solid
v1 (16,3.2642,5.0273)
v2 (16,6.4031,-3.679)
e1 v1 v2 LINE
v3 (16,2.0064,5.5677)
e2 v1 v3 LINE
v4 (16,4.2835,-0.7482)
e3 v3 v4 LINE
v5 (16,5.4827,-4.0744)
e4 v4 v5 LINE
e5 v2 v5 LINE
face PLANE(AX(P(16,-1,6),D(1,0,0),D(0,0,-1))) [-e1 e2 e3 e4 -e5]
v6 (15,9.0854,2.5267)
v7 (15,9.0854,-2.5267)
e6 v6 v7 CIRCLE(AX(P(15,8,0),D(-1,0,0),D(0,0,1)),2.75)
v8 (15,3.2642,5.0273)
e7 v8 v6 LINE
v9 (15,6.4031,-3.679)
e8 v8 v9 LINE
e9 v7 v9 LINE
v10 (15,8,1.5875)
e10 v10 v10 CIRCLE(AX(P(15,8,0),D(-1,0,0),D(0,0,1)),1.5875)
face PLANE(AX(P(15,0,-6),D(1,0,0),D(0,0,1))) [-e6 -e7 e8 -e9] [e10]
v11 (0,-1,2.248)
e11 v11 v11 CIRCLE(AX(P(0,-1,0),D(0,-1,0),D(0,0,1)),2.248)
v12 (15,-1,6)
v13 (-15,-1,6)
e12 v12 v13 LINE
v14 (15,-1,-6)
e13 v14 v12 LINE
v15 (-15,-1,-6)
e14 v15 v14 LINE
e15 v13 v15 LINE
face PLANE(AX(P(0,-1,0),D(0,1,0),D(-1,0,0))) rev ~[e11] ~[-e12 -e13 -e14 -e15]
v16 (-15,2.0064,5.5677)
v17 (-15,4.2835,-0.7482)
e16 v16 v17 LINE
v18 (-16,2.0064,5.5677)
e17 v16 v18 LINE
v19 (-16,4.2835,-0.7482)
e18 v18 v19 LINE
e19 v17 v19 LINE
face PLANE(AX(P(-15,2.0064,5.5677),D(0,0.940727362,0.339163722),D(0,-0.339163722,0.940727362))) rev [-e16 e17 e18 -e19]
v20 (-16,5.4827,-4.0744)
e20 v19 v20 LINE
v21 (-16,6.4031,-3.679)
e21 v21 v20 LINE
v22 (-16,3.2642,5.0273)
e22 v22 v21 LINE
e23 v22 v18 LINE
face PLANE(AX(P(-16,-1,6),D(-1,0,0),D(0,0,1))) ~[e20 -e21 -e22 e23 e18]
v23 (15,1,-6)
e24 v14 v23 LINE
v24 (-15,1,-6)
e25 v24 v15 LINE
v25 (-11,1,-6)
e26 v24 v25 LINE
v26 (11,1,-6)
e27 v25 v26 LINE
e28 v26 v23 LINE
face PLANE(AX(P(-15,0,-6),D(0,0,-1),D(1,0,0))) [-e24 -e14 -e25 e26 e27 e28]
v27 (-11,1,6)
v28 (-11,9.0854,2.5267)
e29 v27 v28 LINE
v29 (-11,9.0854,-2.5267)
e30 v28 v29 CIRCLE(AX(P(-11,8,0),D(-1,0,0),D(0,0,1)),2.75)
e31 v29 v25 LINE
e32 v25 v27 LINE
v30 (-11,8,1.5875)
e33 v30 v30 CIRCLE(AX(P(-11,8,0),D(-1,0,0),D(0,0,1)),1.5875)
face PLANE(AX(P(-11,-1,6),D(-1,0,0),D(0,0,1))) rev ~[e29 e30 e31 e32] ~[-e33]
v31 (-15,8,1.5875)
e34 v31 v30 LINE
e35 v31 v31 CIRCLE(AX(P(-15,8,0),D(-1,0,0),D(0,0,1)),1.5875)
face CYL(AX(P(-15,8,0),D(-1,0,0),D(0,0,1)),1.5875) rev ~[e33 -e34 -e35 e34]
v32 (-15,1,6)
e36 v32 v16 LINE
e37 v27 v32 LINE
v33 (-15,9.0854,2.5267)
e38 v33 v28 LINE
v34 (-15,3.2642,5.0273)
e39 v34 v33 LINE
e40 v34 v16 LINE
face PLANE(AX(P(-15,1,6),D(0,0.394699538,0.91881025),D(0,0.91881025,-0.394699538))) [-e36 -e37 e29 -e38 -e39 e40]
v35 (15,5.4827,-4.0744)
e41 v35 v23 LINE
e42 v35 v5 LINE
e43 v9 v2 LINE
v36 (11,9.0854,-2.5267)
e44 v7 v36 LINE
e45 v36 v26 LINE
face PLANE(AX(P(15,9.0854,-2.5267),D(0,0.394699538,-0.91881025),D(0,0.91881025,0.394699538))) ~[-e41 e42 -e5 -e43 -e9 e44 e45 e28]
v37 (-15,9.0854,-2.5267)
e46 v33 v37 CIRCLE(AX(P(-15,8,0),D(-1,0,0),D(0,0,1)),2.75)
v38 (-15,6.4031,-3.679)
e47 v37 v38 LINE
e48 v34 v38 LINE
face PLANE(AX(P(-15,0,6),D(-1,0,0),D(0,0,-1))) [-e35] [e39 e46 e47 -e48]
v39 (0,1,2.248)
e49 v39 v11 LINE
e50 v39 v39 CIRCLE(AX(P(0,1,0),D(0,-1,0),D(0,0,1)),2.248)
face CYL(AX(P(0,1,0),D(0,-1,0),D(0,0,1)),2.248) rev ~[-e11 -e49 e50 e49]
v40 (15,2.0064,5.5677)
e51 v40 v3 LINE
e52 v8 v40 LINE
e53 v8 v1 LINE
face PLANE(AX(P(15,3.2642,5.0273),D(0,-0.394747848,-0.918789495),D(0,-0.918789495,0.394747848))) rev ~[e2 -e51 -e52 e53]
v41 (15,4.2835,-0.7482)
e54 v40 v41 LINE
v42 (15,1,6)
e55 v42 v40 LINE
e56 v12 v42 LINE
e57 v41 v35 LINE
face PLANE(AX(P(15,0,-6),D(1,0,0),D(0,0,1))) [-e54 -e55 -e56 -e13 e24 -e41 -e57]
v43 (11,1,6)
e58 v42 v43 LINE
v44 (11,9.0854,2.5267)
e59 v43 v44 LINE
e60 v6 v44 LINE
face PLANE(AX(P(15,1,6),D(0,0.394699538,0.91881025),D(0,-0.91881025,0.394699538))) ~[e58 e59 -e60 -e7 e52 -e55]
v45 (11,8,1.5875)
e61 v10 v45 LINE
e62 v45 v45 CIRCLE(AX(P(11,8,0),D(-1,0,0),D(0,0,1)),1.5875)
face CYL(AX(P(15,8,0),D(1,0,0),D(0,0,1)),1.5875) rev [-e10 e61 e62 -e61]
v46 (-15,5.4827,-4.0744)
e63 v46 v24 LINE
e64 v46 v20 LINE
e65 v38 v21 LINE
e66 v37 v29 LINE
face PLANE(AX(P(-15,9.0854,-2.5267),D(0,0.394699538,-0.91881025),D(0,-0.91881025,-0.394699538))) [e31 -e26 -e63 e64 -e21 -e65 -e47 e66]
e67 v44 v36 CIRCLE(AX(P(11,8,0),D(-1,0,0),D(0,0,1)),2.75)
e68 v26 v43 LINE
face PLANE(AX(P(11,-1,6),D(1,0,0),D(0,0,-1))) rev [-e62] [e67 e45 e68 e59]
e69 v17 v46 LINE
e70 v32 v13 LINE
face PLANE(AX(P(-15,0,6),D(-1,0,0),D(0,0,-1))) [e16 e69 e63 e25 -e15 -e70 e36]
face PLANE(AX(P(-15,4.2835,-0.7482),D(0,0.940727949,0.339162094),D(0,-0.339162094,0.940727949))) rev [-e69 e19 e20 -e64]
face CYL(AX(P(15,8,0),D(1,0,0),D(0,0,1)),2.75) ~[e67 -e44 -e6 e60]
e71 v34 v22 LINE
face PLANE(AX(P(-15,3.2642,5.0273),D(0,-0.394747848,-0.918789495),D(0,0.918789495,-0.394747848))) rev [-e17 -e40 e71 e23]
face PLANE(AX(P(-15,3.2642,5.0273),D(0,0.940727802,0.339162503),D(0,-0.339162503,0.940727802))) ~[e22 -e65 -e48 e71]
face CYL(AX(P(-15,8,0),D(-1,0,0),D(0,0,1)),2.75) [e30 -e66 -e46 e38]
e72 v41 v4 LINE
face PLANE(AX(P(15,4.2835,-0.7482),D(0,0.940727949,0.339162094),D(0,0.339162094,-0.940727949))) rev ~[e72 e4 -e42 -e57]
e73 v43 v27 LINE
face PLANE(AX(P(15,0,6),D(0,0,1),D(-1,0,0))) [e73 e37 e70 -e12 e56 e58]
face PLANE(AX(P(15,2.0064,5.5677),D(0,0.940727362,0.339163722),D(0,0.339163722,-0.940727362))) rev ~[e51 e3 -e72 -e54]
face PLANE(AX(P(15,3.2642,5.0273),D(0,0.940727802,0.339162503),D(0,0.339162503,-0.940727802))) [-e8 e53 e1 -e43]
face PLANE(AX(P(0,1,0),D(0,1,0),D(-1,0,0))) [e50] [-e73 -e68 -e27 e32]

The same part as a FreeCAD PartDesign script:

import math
import FreeCAD as App
import Part
import Sketcher

V = App.Vector
Q = App.Units.Quantity

doc = App.newDocument("Part")
body = doc.addObject("PartDesign::Body", "Body")

# Sketch on XZ plane
sketch1 = body.newObject("Sketcher::SketchObject", "Sketch")
sketch1.AttachmentSupport = (doc.getObject("XZ_Plane"), [""])
sketch1.MapMode = "FlatFace"
sketch1.addGeometry(Part.LineSegment(V(-15, 6, 0), V(15, 6, 0)), False)
sketch1.addGeometry(Part.LineSegment(V(15, 6, 0), V(15, -6, 0)), False)
sketch1.addGeometry(Part.LineSegment(V(15, -6, 0), V(-15, -6, 0)), False)
sketch1.addGeometry(Part.LineSegment(V(-15, -6, 0), V(-15, 6, 0)), False)
sketch1.addConstraint(Sketcher.Constraint("Coincident", 0, 2, 1, 1))
sketch1.addConstraint(Sketcher.Constraint("Coincident", 1, 2, 2, 1))
sketch1.addConstraint(Sketcher.Constraint("Coincident", 2, 2, 3, 1))
sketch1.addConstraint(Sketcher.Constraint("Coincident", 3, 2, 0, 1))
sketch1.addConstraint(Sketcher.Constraint("Horizontal", 0))
sketch1.addConstraint(Sketcher.Constraint("Vertical", 1))
sketch1.addConstraint(Sketcher.Constraint("Horizontal", 2))
sketch1.addConstraint(Sketcher.Constraint("Vertical", 3))
sketch1.addConstraint(Sketcher.Constraint("Symmetric", 0, 2, 2, 2, -1, 1))
sketch1.addConstraint(Sketcher.Constraint("DistanceX", 0, 1, 0, 2, Q("30 mm")))
sketch1.addConstraint(Sketcher.Constraint("DistanceY", 1, 2, 1, 1, Q("12 mm")))
pad1 = body.newObject("PartDesign::Pad", "Pad")
pad1.Profile = sketch1
pad1.Length = 2
pad1.Midplane = True

# Sketch on YZ plane
sketch2 = body.newObject("Sketcher::SketchObject", "Sketch001")
sketch2.AttachmentSupport = (doc.getObject("YZ_Plane"), [""])
sketch2.MapMode = "FlatFace"
sketch2.AttachmentOffset = App.Placement(V(0, 0, -15), App.Rotation())
sketch2.addGeometry(Part.ArcOfCircle(Part.Circle(V(8, 0, 0), V(0, 0, 1), 2.8), math.radians(-67), math.radians(67)), False)
sketch2.addGeometry(Part.LineSegment(V(9.1, -2.5, 0), V(1, -6, 0)), False)
sketch2.addGeometry(Part.LineSegment(V(1, -6, 0), V(1, 6, 0)), False)
sketch2.addGeometry(Part.LineSegment(V(1, 6, 0), V(9.1, 2.5, 0)), False)
sketch2.addGeometry(Part.Circle(V(8, 0, 0), V(0, 0, 1), 1.6), False)
sketch2.addConstraint(Sketcher.Constraint("Tangent", 0, 1, 1, 1))
sketch2.addConstraint(Sketcher.Constraint("Coincident", 1, 2, 2, 1))
sketch2.addConstraint(Sketcher.Constraint("Coincident", 2, 2, 3, 1))
sketch2.addConstraint(Sketcher.Constraint("Tangent", 3, 2, 0, 2))
sketch2.addConstraint(Sketcher.Constraint("Vertical", 2))
sketch2.addConstraint(Sketcher.Constraint("Coincident", 4, 3, 0, 3))
sketch2.addConstraint(Sketcher.Constraint("Symmetric", 0, 1, 3, 2, -1))
sketch2.addConstraint(Sketcher.Constraint("Radius", 0, Q("2.75 mm")))
sketch2.addConstraint(Sketcher.Constraint("Diameter", 4, Q("3.175 mm")))
sketch2.addConstraint(Sketcher.Constraint("DistanceX", 1, 2, 0, 3, Q("7 mm")))
sketch2.addConstraint(Sketcher.Constraint("DistanceY", 2, 1, 2, 2, Q("12 mm")))
sketch2.addConstraint(Sketcher.Constraint("DistanceX", -1, 1, 0, 3, Q("8 mm")))
pad2 = body.newObject("PartDesign::Pad", "Pad001")
pad2.Profile = sketch2
pad2.Length = 4
doc.recompute()

mirrored = body.newObject("PartDesign::Mirrored", "Mirrored")
mirrored.Originals = [pad2]
mirrored.MirrorPlane = (doc.getObject("YZ_Plane"), [""])
body.Tip = mirrored

# Sketch on YZ plane
sketch3 = body.newObject("Sketcher::SketchObject", "Sketch002")
sketch3.AttachmentSupport = (doc.getObject("YZ_Plane"), [""])
sketch3.MapMode = "FlatFace"
sketch3.AttachmentOffset = App.Placement(V(0, 0, 15), App.Rotation())
sketch3.addGeometry(Part.LineSegment(V(5.5, -4.1, 0), V(6.4, -3.7, 0)), False)
sketch3.addGeometry(Part.LineSegment(V(6.4, -3.7, 0), V(3.3, 5, 0)), False)
sketch3.addGeometry(Part.LineSegment(V(3.3, 5, 0), V(2, 5.6, 0)), False)
sketch3.addGeometry(Part.LineSegment(V(2, 5.6, 0), V(4.3, -0.7, 0)), False)
sketch3.addGeometry(Part.LineSegment(V(4.3, -0.7, 0), V(5.5, -4.1, 0)), False)
sketch3.addConstraint(Sketcher.Constraint("Coincident", 0, 2, 1, 1))
sketch3.addConstraint(Sketcher.Constraint("Coincident", 1, 2, 2, 1))
sketch3.addConstraint(Sketcher.Constraint("Coincident", 2, 2, 3, 1))
sketch3.addConstraint(Sketcher.Constraint("Coincident", 3, 2, 4, 1))
sketch3.addConstraint(Sketcher.Constraint("Coincident", 4, 2, 0, 1))
sketch3.addConstraint(Sketcher.Constraint("Parallel", 1, 3))
sketch3.addConstraint(Sketcher.Constraint("Parallel", 3, 4))
sketch3.addConstraint(Sketcher.Constraint("Angle", 2, Q("156.7498 deg")))
sketch3.addConstraint(Sketcher.Constraint("Distance", 2, Q("1.369 mm")))
sketch3.addConstraint(Sketcher.Constraint("DistanceX", -1, 1, 0, 2, Q("6.403 mm")))
sketch3.addConstraint(Sketcher.Constraint("DistanceY", 0, 2, -1, 1, Q("3.679 mm")))
sketch3.addConstraint(Sketcher.Constraint("DistanceX", 1, 2, 0, 2, Q("3.139 mm")))
sketch3.addConstraint(Sketcher.Constraint("DistanceX", 2, 2, 3, 2, Q("2.277 mm")))
sketch3.addConstraint(Sketcher.Constraint("DistanceY", 3, 2, 2, 2, Q("6.316 mm")))
sketch3.addConstraint(Sketcher.Constraint("DistanceY", 4, 2, 2, 2, Q("9.642 mm")))
pad3 = body.newObject("PartDesign::Pad", "Pad002")
pad3.Profile = sketch3
pad3.Length = 1
doc.recompute()

mirrored2 = body.newObject("PartDesign::Mirrored", "Mirrored001")
mirrored2.Originals = [pad3]
mirrored2.MirrorPlane = (doc.getObject("YZ_Plane"), [""])
body.Tip = mirrored2

# Sketch on XZ plane
sketch4 = body.newObject("Sketcher::SketchObject", "Sketch003")
sketch4.AttachmentSupport = (doc.getObject("XZ_Plane"), [""])
sketch4.MapMode = "FlatFace"
sketch4.AttachmentOffset = App.Placement(V(0, 0, -1), App.Rotation())
sketch4.addGeometry(Part.Circle(V(0, 0, 0), V(0, 0, 1), 2.2), False)
sketch4.addConstraint(Sketcher.Constraint("Coincident", 0, 3, -1, 1))
sketch4.addConstraint(Sketcher.Constraint("Diameter", 0, Q("4.496 mm")))
doc.recompute()
hole = body.newObject("PartDesign::Hole", "Hole")
hole.Profile = sketch4
hole.ThreadType = "None"
hole.Diameter = 4.496
hole.DepthType = "Dimension"
hole.Depth = 5.692
hole.DrillPoint = "Angled"
hole.DrillPointAngle = 118
hole.Reversed = True

doc.recompute()
